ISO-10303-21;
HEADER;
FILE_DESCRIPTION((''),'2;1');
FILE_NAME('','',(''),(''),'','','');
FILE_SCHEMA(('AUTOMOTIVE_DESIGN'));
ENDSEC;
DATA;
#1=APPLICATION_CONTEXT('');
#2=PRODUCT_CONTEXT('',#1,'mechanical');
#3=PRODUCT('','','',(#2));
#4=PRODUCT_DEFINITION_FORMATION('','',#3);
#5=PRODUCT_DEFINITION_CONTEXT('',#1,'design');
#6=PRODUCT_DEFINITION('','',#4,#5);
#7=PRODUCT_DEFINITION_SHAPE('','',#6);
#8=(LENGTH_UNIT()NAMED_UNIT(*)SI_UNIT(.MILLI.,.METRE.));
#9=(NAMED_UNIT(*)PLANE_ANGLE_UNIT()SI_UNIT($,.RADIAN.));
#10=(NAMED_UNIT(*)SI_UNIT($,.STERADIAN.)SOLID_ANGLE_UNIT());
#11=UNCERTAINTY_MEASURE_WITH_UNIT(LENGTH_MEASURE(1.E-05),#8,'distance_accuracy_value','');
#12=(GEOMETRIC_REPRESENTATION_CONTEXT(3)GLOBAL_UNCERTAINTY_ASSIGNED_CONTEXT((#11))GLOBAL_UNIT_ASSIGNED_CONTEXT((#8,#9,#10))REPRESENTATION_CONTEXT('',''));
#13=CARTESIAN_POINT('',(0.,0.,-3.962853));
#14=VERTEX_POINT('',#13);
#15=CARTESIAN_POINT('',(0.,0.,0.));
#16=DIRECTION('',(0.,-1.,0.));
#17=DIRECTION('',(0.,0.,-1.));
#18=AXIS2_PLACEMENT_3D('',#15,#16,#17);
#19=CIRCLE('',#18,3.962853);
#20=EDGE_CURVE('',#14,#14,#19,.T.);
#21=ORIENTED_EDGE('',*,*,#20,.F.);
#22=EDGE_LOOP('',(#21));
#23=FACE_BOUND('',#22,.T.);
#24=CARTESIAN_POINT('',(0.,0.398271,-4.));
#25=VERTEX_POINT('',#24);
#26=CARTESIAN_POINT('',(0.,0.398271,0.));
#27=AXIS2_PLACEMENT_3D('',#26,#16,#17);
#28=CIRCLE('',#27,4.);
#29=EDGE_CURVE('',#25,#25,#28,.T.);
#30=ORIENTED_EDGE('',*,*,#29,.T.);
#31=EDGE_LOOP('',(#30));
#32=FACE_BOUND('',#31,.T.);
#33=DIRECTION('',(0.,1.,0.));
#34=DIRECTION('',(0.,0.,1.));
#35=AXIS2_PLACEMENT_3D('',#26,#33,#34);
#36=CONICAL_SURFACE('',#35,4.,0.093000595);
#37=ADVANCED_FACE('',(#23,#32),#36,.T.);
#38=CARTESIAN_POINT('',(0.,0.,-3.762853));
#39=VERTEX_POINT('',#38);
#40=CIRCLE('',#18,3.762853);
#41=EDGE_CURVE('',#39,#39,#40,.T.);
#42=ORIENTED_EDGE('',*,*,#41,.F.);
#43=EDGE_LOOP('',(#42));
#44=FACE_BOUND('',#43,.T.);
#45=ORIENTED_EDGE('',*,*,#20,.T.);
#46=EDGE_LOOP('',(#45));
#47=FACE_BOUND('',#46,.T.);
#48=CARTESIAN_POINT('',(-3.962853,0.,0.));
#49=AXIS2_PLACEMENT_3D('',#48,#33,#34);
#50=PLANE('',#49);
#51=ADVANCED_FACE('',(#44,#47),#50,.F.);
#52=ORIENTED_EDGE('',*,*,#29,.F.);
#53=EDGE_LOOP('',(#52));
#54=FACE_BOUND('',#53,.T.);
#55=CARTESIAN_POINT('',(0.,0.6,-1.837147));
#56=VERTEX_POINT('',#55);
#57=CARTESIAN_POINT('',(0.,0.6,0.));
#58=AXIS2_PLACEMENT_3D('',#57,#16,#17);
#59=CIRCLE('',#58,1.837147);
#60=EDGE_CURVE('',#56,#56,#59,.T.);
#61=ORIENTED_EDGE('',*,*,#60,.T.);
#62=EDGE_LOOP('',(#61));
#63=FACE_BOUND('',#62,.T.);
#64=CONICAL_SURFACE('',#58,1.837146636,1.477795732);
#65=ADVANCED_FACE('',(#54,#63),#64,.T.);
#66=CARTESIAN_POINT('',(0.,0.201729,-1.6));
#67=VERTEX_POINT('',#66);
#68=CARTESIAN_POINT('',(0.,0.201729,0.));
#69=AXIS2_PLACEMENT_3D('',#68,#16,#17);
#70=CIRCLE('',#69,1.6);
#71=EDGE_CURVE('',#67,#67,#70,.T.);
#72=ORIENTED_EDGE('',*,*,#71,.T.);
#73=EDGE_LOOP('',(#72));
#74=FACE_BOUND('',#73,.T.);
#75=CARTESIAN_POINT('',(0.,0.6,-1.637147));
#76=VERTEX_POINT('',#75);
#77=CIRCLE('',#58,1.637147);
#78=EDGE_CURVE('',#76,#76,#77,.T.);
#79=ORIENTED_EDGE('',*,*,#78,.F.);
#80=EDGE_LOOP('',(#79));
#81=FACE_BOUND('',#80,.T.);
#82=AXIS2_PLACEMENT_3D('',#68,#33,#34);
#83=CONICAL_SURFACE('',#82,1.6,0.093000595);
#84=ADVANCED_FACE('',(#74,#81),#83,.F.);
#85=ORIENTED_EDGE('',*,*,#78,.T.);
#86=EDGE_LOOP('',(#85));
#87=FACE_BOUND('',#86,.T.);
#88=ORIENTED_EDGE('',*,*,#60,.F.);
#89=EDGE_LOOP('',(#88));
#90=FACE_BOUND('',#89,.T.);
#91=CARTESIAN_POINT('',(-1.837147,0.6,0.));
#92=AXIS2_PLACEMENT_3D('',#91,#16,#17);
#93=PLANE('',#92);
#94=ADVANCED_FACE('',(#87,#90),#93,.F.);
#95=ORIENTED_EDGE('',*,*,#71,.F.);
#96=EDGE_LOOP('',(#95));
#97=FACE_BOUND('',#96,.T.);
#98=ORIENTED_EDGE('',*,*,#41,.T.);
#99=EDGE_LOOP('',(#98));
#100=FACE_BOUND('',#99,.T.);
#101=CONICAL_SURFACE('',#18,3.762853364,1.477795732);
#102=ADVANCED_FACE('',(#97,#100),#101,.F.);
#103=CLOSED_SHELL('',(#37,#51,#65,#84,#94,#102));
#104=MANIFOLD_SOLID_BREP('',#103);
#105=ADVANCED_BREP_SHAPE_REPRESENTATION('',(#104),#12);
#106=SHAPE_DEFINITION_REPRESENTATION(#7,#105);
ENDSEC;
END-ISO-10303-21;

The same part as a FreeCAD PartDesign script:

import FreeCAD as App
import Part
import Sketcher

V = App.Vector

doc = App.newDocument("Part")
body = doc.addObject("PartDesign::Body", "Body")

sketch1 = doc.addObject("Sketcher::SketchObject", "Sketch")
body.addObject(sketch1)
sketch1.AttachmentSupport = (doc.XY_Plane, [""])
sketch1.MapMode = "FlatFace"
sketch1.addGeometry([
    Part.LineSegment(V(-3.76, 0, 0), V(-1.6, 0.2, 0)),
    Part.LineSegment(V(-1.6, 0.2, 0), V(-1.64, 0.6, 0)),
    Part.LineSegment(V(-1.64, 0.6, 0), V(-1.84, 0.6, 0)),
    Part.LineSegment(V(-1.84, 0.6, 0), V(-4, 0.4, 0)),
    Part.LineSegment(V(-4, 0.4, 0), V(-3.96, 0, 0)),
    Part.LineSegment(V(-3.96, 0, 0), V(-3.76, 0, 0)),
], False)
sketch1.addConstraint([
    Sketcher.Constraint("Coincident", 0, 2, 1, 1),
    Sketcher.Constraint("Coincident", 1, 2, 2, 1),
    Sketcher.Constraint("Coincident", 2, 2, 3, 1),
    Sketcher.Constraint("Coincident", 3, 2, 4, 1),
    Sketcher.Constraint("Coincident", 4, 2, 5, 1),
    Sketcher.Constraint("Coincident", 5, 2, 0, 1),
    Sketcher.Constraint("Horizontal", 2),
    Sketcher.Constraint("Horizontal", 5),
    Sketcher.Constraint("PointOnObject", 4, 2, -1),
    Sketcher.Constraint("Perpendicular", 0, 1),
    Sketcher.Constraint("Perpendicular", 1, 3),
    Sketcher.Constraint("Perpendicular", 3, 4),
    Sketcher.Constraint("Equal", 2, 5),
    Sketcher.Constraint("DistanceX", 2, 2, 2, 1, 0.2),
    Sketcher.Constraint("DistanceX", 3, 2, -1, 1, 4.0),
    Sketcher.Constraint("Distance", 1, 0.4),
    Sketcher.Constraint("DistanceX", 0, 2, -1, 1, 1.6),
    Sketcher.Constraint("DistanceY", -1, 1, 1, 2, 0.6),
])
revolution = doc.addObject("PartDesign::Revolution", "Revolution")
body.addObject(revolution)
revolution.Profile = sketch1
revolution.ReferenceAxis = (sketch1, ["V_Axis"])
revolution.Angle = 360

doc.recompute()
